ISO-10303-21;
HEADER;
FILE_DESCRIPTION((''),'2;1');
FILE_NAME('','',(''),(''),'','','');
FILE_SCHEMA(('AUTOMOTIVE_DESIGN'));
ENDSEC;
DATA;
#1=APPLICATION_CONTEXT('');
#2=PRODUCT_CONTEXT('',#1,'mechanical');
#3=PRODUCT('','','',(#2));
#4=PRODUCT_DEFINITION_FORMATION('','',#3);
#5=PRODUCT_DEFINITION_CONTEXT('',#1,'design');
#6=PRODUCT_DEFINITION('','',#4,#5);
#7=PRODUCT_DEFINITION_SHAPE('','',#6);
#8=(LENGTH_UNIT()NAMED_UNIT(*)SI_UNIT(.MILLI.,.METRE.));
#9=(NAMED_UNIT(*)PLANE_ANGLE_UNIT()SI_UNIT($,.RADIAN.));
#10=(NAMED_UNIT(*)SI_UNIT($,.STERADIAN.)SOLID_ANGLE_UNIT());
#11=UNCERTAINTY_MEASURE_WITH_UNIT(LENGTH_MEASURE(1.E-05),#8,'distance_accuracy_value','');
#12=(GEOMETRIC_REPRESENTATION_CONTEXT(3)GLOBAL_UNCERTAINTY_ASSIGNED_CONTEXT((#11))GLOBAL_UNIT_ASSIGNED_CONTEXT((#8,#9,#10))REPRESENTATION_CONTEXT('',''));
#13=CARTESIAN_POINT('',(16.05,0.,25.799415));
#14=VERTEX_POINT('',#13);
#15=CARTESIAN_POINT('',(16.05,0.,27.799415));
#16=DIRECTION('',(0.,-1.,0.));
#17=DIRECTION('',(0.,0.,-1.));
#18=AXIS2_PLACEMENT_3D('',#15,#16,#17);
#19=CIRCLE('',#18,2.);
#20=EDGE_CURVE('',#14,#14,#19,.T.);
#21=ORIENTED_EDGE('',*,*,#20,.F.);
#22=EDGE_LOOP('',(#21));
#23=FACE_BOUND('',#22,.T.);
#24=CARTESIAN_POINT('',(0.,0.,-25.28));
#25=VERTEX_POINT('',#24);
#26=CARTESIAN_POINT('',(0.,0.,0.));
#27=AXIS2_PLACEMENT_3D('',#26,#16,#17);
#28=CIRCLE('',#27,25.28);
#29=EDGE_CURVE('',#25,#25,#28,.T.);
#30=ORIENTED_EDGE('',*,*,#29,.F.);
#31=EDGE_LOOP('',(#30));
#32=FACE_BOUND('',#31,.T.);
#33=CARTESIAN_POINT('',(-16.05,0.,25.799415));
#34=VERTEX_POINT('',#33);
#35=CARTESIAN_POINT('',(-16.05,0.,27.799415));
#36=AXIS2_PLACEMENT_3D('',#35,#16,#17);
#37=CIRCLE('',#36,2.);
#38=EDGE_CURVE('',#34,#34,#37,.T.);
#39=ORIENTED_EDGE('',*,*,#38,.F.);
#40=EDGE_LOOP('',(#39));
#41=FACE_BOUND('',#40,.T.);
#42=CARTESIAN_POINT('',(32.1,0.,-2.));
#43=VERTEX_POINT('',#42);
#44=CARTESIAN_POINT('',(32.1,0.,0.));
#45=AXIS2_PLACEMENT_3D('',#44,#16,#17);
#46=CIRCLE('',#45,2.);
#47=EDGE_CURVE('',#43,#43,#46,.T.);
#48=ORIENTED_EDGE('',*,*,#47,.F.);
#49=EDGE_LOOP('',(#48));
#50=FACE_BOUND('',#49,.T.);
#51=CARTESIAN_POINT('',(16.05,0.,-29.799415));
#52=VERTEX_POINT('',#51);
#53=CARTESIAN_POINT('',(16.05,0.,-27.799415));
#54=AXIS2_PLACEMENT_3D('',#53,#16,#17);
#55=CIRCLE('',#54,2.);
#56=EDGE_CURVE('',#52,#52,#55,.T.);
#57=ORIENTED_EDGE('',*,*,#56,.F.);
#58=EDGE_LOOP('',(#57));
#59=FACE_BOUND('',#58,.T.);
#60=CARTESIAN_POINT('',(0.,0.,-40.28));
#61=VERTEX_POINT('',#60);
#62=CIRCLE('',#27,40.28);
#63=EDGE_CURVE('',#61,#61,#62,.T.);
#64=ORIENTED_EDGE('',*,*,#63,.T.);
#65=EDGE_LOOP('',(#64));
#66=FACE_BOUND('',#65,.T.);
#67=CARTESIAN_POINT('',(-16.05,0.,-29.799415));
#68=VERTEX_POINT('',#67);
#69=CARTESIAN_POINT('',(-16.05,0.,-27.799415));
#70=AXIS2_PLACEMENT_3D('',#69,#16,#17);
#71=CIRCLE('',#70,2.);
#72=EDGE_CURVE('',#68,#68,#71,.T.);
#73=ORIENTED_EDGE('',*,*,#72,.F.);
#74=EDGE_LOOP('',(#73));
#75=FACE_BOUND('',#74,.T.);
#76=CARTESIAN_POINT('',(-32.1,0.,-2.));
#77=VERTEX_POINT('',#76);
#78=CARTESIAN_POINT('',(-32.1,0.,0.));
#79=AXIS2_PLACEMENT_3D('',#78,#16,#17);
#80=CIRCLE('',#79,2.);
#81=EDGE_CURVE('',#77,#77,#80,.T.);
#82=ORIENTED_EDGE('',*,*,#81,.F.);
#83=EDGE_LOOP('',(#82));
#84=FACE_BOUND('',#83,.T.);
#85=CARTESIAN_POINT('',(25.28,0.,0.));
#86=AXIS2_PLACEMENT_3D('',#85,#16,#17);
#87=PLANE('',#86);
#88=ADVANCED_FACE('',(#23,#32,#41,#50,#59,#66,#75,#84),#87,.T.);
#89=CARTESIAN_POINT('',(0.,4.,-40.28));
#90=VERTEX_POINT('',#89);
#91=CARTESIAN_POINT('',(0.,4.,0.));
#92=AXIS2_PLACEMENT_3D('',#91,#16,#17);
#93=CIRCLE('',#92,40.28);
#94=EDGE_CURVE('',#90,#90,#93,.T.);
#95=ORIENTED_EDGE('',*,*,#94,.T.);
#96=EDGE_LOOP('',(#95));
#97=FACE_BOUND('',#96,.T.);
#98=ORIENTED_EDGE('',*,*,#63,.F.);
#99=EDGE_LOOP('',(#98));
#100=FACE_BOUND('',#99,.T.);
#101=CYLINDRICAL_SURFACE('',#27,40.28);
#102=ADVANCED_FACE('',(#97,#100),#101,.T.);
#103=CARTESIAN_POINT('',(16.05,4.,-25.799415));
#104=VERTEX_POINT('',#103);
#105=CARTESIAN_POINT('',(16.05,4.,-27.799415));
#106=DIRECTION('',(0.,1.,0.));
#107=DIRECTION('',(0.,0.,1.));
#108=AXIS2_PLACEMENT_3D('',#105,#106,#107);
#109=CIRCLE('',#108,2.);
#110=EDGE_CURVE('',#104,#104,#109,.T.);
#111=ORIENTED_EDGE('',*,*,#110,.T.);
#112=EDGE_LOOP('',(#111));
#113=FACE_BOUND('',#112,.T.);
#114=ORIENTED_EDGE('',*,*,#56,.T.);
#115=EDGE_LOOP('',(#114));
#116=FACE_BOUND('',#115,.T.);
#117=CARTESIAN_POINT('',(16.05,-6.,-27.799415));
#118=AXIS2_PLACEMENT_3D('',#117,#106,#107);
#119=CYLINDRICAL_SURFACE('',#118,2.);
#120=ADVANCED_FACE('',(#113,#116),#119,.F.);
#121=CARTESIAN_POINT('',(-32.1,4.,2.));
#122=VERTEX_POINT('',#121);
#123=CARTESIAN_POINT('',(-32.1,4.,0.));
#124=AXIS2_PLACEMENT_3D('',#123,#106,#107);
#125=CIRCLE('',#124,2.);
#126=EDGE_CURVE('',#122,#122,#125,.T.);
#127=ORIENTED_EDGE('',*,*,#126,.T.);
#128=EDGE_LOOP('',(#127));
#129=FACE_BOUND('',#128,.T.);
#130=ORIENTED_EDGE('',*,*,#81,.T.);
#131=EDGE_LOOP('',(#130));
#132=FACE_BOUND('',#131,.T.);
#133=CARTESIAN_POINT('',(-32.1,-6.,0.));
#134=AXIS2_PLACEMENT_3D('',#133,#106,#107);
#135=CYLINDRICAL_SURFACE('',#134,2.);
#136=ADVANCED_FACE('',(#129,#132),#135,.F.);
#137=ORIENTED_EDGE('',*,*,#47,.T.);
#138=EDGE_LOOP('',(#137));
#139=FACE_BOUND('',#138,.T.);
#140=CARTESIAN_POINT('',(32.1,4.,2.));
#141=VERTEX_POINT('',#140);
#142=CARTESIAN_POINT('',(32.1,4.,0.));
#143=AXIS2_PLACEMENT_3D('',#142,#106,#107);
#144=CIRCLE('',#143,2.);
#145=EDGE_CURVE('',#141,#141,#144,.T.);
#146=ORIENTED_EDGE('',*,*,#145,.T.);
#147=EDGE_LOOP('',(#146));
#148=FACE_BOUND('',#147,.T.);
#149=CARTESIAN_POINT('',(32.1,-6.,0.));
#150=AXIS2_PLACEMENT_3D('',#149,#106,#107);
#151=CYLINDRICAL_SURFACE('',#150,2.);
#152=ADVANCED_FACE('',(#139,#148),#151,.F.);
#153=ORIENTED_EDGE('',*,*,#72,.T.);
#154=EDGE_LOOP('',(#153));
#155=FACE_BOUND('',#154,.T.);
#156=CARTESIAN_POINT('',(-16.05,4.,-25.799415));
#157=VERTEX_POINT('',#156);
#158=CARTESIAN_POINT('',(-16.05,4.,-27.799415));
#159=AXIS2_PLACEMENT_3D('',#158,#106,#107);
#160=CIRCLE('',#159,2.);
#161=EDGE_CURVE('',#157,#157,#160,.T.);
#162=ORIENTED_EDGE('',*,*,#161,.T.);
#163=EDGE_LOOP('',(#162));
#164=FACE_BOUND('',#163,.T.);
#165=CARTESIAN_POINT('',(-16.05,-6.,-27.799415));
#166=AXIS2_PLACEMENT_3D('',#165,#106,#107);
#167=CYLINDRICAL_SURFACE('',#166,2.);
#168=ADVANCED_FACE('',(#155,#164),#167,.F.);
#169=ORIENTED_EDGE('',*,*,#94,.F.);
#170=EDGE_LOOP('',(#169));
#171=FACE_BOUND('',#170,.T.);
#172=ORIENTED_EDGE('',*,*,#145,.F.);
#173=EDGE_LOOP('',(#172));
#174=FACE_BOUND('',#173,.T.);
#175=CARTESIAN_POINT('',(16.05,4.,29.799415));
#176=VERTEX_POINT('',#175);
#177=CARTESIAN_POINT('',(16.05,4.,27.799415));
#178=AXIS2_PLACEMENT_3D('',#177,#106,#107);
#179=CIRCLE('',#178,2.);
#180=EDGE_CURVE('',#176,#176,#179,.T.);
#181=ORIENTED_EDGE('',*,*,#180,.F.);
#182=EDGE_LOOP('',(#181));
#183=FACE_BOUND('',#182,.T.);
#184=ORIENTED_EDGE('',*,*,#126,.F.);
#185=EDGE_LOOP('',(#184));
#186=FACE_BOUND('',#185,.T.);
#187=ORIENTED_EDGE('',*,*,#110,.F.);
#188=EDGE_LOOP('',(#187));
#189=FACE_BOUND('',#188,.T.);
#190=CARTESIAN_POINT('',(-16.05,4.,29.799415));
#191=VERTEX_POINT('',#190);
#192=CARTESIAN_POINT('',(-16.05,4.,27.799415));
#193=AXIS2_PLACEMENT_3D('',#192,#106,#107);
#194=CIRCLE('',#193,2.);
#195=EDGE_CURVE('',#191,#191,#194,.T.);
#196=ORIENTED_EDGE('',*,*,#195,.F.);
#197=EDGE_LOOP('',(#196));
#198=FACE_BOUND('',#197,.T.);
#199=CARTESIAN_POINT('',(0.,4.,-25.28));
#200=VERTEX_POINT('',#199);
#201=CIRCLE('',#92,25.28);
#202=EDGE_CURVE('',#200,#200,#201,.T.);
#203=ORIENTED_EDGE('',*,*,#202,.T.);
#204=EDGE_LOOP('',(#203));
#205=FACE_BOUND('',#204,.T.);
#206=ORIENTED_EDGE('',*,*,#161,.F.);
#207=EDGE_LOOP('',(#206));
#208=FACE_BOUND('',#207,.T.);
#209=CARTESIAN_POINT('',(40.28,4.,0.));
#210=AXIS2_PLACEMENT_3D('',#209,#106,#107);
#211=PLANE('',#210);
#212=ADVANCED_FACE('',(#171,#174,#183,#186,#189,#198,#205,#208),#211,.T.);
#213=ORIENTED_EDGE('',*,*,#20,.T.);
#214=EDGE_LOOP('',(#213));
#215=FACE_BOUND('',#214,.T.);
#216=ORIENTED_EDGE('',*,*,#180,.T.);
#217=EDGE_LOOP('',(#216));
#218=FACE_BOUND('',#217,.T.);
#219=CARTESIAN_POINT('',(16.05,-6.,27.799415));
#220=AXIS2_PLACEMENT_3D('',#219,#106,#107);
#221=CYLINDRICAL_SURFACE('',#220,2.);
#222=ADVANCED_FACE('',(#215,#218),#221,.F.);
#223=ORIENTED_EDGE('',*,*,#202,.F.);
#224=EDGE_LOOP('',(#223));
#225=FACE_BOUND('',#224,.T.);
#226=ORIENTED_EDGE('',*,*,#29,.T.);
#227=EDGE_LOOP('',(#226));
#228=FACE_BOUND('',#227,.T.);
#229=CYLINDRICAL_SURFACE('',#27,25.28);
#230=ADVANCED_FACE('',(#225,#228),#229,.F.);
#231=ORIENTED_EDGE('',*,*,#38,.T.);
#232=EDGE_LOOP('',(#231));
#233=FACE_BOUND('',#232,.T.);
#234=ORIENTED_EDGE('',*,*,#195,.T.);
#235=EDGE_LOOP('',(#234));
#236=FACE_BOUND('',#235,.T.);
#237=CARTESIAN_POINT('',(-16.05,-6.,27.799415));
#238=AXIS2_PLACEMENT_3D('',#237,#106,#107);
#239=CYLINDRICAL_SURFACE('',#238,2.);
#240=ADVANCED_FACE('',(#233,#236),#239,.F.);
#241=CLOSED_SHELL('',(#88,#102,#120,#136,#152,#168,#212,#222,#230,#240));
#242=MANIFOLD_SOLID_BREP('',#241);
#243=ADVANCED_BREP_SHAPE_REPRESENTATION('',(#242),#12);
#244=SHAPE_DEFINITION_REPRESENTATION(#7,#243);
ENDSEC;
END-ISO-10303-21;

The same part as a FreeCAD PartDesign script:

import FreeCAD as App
import Part
import Sketcher

V = App.Vector
Q = App.Units.Quantity


def add_polygon(sketch, points):
    """Adds a closed chain of lines whose ends are joined by coincident constraints."""
    first, n = sketch.GeometryCount, len(points)
    for a, b in zip(points, points[1:] + points[:1]):
        sketch.addGeometry(Part.LineSegment(App.Vector(*a, 0), App.Vector(*b, 0)), False)
    for i in range(n):
        sketch.addConstraint(Sketcher.Constraint("Coincident", first + i, 2, first + (i + 1) % n, 1))

doc = App.newDocument("Part")
body = doc.addObject("PartDesign::Body", "Body")

sketch1 = body.newObject("Sketcher::SketchObject", "Sketch")
sketch1.AttachmentSupport = (doc.getObject("XY_Plane"), [""])
sketch1.MapMode = "FlatFace"
add_polygon(sketch1, [(25.3, 4), (25.3, 0), (40.3, 0), (40.3, 4)])
sketch1.addConstraint(Sketcher.Constraint("Vertical", 0))
sketch1.addConstraint(Sketcher.Constraint("Horizontal", 1))
sketch1.addConstraint(Sketcher.Constraint("Vertical", 2))
sketch1.addConstraint(Sketcher.Constraint("Horizontal", 3))
sketch1.addConstraint(Sketcher.Constraint("PointOnObject", 0, 2, -1))
sketch1.addConstraint(Sketcher.Constraint("DistanceX", 1, 1, 1, 2, Q("15 mm")))
sketch1.addConstraint(Sketcher.Constraint("DistanceY", 0, 2, 0, 1, Q("4 mm")))
sketch1.addConstraint(Sketcher.Constraint("DistanceX", -1, 1, 0, 2, Q("25.28 mm")))
revolution = body.newObject("PartDesign::Revolution", "Revolution")
revolution.Profile = sketch1
revolution.ReferenceAxis = (sketch1, ["V_Axis"])
revolution.Angle = 360

sketch2 = body.newObject("Sketcher::SketchObject", "Sketch001")
sketch2.AttachmentSupport = (doc.getObject("XZ_Plane"), [""])
sketch2.MapMode = "FlatFace"
sketch2.AttachmentOffset = App.Placement(V(0, 0, -4), App.Rotation())
sketch2.addGeometry(Part.Circle(V(-32.1, 0, 0), V(0, 0, 1), 2), False)
sketch2.addGeometry(Part.Circle(V(-16.1, -27.8, 0), V(0, 0, 1), 2), False)
sketch2.addGeometry(Part.Circle(V(16.1, -27.8, 0), V(0, 0, 1), 2), False)
sketch2.addGeometry(Part.Circle(V(32.1, 0, 0), V(0, 0, 1), 2), False)
sketch2.addGeometry(Part.Circle(V(16.1, 27.8, 0), V(0, 0, 1), 2), False)
sketch2.addGeometry(Part.Circle(V(-16.1, 27.8, 0), V(0, 0, 1), 2), False)
sketch2.addConstraint(Sketcher.Constraint("Equal", 0, 1))
sketch2.addConstraint(Sketcher.Constraint("Equal", 1, 2))
sketch2.addConstraint(Sketcher.Constraint("Equal", 2, 3))
sketch2.addConstraint(Sketcher.Constraint("Equal", 3, 4))
sketch2.addConstraint(Sketcher.Constraint("Equal", 4, 5))
sketch2.addConstraint(Sketcher.Constraint("Symmetric", 0, 3, 3, 3, -1, 1))
sketch2.addConstraint(Sketcher.Constraint("Symmetric", 1, 3, 4, 3, -1, 1))
sketch2.addConstraint(Sketcher.Constraint("Symmetric", 2, 3, 5, 3, -1, 1))
sketch2.addConstraint(Sketcher.Constraint("Symmetric", 1, 3, 2, 3, -2))
sketch2.addConstraint(Sketcher.Constraint("PointOnObject", 0, 3, -1))
sketch2.addConstraint(Sketcher.Constraint("Diameter", 0, Q("4 mm")))
sketch2.addConstraint(Sketcher.Constraint("DistanceX", 0, 3, -1, 1, Q("32.1 mm")))
sketch2.addConstraint(Sketcher.Constraint("DistanceX", 1, 3, 2, 3, Q("32.1 mm")))
sketch2.addConstraint(Sketcher.Constraint("DistanceY", 2, 3, 4, 3, Q("55.598831 mm")))
pocket1 = body.newObject("PartDesign::Pocket", "Pocket")
pocket1.Profile = sketch2
pocket1.Length = 10
pocket1.Reversed = True

doc.recompute()
